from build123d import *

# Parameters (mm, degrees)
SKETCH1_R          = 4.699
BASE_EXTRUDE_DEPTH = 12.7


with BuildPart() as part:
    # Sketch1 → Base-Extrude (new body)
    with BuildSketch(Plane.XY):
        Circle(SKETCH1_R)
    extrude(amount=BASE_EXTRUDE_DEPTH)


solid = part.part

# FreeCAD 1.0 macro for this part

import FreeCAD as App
import Part
import Sketcher
Q = App.Units.Quantity

doc = App.newDocument("Part")
body = doc.addObject("PartDesign::Body", "Body")

# Sketch on XY plane
sketch1 = doc.addObject("Sketcher::SketchObject", "Sketch")
body.addObject(sketch1)
sketch1.AttachmentSupport = (doc.XY_Plane, [""])
sketch1.MapMode = "FlatFace"
sketch1.addGeometry(Part.Circle(App.Vector(0, 0, 0), App.Vector(0, 0, 1), 4.7), False)
sketch1.addConstraint([
    Sketcher.Constraint("Coincident", 0, 3, -1, 1),
    Sketcher.Constraint("Diameter", 0, Q("0.37 in")),
])
pad1 = doc.addObject("PartDesign::Pad", "Pad")
body.addObject(pad1)
pad1.Profile = sketch1
pad1.Length = Q("0.5 in")

doc.recompute()
